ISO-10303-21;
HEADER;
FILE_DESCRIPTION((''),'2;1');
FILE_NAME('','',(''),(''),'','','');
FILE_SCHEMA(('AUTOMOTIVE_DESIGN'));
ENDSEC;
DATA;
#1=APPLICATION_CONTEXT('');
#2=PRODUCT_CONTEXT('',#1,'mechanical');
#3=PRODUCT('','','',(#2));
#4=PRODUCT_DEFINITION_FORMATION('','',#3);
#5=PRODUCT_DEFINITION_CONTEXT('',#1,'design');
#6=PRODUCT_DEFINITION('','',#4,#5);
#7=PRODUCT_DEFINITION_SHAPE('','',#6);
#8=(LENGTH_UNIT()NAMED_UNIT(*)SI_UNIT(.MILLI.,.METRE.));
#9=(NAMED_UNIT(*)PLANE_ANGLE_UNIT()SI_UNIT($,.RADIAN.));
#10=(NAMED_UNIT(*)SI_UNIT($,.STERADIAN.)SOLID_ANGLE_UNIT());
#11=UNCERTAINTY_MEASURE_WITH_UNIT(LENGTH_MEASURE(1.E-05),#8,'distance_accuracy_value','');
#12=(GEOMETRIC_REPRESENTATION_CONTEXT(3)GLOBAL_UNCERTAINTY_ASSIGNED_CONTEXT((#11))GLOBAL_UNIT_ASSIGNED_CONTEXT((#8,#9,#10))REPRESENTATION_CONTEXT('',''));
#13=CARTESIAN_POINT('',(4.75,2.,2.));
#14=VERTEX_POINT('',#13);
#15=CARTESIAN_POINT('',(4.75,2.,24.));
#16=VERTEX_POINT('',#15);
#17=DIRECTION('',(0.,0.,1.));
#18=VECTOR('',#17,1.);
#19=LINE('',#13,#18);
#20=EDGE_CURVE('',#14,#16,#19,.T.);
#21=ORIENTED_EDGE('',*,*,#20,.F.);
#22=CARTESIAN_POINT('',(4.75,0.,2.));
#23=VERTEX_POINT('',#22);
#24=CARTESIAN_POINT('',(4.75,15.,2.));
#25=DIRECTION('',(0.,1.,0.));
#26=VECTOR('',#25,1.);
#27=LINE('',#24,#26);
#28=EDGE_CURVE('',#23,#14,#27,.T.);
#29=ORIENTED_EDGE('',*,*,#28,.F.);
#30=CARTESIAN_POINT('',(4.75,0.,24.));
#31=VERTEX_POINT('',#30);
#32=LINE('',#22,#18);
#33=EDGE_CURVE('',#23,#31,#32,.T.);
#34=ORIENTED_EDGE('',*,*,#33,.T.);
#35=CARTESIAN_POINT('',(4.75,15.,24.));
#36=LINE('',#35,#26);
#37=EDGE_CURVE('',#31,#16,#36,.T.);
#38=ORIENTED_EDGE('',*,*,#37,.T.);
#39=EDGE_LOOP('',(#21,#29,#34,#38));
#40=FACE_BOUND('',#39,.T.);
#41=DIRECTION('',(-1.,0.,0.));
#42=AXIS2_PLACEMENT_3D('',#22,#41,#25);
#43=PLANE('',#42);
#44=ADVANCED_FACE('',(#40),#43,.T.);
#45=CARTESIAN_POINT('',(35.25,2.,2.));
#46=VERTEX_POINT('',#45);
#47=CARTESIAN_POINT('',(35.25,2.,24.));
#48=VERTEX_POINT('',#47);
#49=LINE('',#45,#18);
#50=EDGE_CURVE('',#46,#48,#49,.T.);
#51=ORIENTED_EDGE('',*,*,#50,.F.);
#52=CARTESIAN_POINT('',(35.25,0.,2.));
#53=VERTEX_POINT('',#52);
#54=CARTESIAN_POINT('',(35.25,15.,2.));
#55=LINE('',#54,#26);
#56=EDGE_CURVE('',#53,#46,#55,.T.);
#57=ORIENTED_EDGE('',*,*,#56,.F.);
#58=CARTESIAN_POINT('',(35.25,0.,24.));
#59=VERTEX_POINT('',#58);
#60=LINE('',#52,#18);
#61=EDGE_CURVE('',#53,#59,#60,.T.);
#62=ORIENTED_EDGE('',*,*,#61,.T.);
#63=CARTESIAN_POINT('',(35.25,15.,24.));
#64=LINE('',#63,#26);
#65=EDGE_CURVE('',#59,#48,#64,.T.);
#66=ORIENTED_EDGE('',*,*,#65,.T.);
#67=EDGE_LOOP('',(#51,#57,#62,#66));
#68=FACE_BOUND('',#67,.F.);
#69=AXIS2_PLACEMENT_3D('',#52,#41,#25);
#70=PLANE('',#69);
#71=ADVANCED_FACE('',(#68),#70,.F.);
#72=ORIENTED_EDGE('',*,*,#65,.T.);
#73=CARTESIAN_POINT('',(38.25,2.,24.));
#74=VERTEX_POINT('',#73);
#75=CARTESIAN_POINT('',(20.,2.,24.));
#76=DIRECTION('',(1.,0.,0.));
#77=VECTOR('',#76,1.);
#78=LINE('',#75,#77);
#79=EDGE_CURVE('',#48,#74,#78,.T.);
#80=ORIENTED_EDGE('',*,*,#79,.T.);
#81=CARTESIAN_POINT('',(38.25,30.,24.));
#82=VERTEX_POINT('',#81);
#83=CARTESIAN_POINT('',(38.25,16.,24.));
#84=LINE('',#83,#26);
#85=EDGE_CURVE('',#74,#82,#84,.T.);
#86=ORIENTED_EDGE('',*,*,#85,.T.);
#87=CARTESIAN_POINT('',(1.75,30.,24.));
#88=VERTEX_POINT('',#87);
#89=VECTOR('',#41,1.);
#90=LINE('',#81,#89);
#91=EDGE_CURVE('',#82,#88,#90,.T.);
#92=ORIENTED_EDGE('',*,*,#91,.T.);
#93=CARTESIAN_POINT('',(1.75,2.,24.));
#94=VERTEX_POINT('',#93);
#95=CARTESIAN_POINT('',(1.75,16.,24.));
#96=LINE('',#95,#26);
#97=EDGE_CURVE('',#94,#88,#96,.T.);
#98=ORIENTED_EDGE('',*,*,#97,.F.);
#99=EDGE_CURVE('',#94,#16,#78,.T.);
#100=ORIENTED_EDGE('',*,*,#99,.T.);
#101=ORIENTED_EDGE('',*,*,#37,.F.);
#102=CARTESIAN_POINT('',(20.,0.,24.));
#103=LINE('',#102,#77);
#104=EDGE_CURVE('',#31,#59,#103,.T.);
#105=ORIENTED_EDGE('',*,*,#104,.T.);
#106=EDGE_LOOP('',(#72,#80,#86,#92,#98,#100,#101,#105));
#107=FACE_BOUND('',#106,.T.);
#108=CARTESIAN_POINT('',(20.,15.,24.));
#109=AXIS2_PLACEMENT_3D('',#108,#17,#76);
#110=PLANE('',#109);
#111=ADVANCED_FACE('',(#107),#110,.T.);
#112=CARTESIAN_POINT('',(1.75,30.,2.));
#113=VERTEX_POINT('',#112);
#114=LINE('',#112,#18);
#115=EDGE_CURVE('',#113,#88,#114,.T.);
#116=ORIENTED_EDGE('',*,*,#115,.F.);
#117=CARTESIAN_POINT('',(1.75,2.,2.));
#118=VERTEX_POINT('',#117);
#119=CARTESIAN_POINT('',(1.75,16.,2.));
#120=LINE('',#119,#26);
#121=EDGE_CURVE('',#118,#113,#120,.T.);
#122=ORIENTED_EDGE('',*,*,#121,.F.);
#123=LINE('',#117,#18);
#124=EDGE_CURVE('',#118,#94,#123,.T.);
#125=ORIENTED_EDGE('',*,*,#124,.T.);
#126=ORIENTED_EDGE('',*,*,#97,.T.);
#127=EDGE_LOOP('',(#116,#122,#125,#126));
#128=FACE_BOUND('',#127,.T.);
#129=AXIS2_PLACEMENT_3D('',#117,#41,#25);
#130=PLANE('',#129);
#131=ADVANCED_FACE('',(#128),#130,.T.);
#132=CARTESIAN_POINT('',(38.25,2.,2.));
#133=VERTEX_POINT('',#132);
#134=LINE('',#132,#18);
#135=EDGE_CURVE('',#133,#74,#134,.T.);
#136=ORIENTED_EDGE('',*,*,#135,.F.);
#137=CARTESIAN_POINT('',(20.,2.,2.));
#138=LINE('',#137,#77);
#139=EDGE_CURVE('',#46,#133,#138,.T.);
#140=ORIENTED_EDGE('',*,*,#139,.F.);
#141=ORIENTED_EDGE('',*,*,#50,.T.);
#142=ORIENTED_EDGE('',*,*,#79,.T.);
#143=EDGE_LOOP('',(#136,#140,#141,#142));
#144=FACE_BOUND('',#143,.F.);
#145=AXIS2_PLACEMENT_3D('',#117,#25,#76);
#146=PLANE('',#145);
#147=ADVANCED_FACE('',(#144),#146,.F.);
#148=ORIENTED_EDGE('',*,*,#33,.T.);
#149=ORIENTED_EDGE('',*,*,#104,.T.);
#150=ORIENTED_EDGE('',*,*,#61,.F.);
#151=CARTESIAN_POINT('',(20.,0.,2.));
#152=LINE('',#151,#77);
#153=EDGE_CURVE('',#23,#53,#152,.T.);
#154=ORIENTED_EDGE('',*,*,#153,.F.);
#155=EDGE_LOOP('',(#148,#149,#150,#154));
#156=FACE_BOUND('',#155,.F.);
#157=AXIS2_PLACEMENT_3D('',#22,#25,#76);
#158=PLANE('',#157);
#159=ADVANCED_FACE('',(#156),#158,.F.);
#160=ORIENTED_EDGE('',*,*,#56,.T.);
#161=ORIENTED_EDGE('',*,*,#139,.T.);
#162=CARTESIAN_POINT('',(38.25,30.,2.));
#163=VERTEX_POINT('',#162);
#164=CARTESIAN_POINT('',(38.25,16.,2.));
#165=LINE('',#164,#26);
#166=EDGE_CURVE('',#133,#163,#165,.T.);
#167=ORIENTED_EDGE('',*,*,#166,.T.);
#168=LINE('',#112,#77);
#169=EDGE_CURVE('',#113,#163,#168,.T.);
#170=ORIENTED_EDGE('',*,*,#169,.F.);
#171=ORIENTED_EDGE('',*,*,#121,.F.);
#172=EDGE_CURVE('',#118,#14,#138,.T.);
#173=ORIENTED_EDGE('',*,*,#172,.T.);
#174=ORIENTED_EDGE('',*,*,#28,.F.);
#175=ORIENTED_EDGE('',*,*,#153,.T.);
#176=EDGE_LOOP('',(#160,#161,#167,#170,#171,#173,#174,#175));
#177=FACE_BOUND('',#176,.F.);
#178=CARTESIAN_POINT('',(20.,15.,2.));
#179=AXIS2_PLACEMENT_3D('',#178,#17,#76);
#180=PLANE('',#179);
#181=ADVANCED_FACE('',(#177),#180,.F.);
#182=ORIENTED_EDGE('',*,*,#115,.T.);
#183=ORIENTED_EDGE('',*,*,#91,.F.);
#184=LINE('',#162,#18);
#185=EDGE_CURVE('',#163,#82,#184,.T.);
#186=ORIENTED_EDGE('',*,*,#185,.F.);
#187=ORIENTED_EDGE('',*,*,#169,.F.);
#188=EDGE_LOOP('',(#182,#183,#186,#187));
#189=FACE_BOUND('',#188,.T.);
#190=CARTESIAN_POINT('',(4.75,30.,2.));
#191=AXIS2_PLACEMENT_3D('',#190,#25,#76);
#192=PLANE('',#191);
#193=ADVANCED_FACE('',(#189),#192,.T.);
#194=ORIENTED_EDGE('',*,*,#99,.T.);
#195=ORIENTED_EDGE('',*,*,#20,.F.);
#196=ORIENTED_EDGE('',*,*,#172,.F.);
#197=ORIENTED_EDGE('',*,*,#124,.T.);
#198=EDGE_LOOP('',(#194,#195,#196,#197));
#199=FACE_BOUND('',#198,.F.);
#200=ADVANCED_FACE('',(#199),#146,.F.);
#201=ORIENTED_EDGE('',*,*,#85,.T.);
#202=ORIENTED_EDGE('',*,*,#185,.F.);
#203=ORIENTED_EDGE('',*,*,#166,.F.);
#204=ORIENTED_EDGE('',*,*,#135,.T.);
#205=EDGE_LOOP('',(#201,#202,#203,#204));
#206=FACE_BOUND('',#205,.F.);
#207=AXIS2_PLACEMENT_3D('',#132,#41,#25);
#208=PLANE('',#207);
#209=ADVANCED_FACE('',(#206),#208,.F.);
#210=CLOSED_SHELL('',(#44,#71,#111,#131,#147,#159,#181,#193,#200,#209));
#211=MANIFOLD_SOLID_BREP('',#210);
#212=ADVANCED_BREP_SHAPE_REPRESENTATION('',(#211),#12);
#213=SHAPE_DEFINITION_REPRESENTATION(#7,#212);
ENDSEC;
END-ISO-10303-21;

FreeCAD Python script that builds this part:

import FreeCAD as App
import Part
import Sketcher
Q = App.Units.Quantity


def add_polygon(sketch, points):
    """Adds a closed chain of lines whose ends are joined by coincident constraints."""
    first, n = sketch.GeometryCount, len(points)
    for a, b in zip(points, points[1:] + points[:1]):
        sketch.addGeometry(Part.LineSegment(App.Vector(*a, 0), App.Vector(*b, 0)), False)
    for i in range(n):
        sketch.addConstraint(Sketcher.Constraint("Coincident", first + i, 2, first + (i + 1) % n, 1))

doc = App.newDocument("Part")
body = doc.addObject("PartDesign::Body", "Body")

# Sketch on XY plane
sketch1 = doc.addObject("Sketcher::SketchObject", "Sketch")
body.addObject(sketch1)
sketch1.AttachmentSupport = (doc.XY_Plane, [""])
sketch1.MapMode = "FlatFace"
add_polygon(sketch1, [(0, 30), (0, 0), (30.5, 0), (30.5, 30)])  # lines 0-3
sketch1.addConstraint([
    Sketcher.Constraint("Vertical", 0),
    Sketcher.Constraint("Horizontal", 1),
    Sketcher.Constraint("Vertical", 2),
    Sketcher.Constraint("Horizontal", 3),
    Sketcher.Constraint("Coincident", 0, 2, -1, 1),
    Sketcher.Constraint("DistanceY", 0, 2, 0, 1, Q("30 mm")),
    Sketcher.Constraint("DistanceX", 1, 1, 1, 2, Q("30.5 mm")),
])
pad1 = doc.addObject("PartDesign::Pad", "Pad")
body.addObject(pad1)
pad1.Profile = sketch1
pad1.Length = 22
body2 = doc.addObject("PartDesign::Body", "Body001")

# Sketch on XY plane
sketch2 = doc.addObject("Sketcher::SketchObject", "Sketch001")
body2.addObject(sketch2)
sketch2.AttachmentSupport = (doc.getObject("XY_Plane001"), [""])
sketch2.MapMode = "FlatFace"
add_polygon(sketch2, [(-3, 30), (-3, 2), (33.5, 2), (33.5, 30)])  # lines 0-3
sketch2.addConstraint([
    Sketcher.Constraint("Vertical", 0),
    Sketcher.Constraint("Horizontal", 1),
    Sketcher.Constraint("Vertical", 2),
    Sketcher.Constraint("Horizontal", 3),
    Sketcher.Constraint("DistanceY", 0, 2, 0, 1, Q("28 mm")),
    Sketcher.Constraint("DistanceX", 1, 1, 1, 2, Q("36.5 mm")),
    Sketcher.Constraint("DistanceX", 0, 2, -1, 1, Q("3 mm")),
    Sketcher.Constraint("DistanceY", -1, 1, 0, 2, Q("2 mm")),
])
pad2 = doc.addObject("PartDesign::Pad", "Pad001")
body2.addObject(pad2)
pad2.Profile = sketch2
pad2.Length = 22
doc.recompute()

boolean = doc.addObject("PartDesign::Boolean", "Boolean")
body2.addObject(boolean)
boolean.Type = "Fuse"
boolean.addObjects([body])
body3 = doc.addObject("PartDesign::Body", "Body002")
doc.recompute()

body2.Placement = App.Placement(App.Vector(4.75, 0, 2), App.Rotation(App.Vector(0, 0, 1), 0))
boolean2 = doc.addObject("PartDesign::Boolean", "Boolean001")
body3.addObject(boolean2)
boolean2.Type = "Fuse"
boolean2.addObjects([body2])

doc.recompute()
